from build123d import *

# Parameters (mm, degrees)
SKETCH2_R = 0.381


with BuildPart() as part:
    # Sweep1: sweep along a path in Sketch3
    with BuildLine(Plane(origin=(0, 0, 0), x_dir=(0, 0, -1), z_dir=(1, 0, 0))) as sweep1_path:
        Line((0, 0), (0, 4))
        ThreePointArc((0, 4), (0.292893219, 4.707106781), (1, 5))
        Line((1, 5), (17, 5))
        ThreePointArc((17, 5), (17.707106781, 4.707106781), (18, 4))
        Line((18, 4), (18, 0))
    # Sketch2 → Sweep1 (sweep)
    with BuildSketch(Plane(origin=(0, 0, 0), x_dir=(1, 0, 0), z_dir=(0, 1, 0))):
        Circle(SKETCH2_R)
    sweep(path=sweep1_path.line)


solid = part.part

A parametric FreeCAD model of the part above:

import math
import FreeCAD as App
import Part
import Sketcher
from FreeCAD import Vector
Q = App.Units.Quantity

doc = App.newDocument("Part")
body = doc.addObject("PartDesign::Body", "Body")

# Sketch on XZ plane
sketch1 = doc.addObject("Sketcher::SketchObject", "Sketch")
body.addObject(sketch1)
sketch1.AttachmentSupport = (doc.XZ_Plane, [""])
sketch1.MapMode = "FlatFace"
sketch1.addGeometry(Part.Circle(Vector(0, 0, 0), Vector(0, 0, 1), 0.38), False)
sketch1.addConstraint(Sketcher.Constraint("Coincident", 0, 3, -1, 1))
sketch1.addConstraint(Sketcher.Constraint("Diameter", 0, Q("0.762 mm")))

# Sketch on YZ plane
sketch2 = doc.addObject("Sketcher::SketchObject", "Sketch001")
body.addObject(sketch2)
sketch2.AttachmentSupport = (doc.YZ_Plane, [""])
sketch2.MapMode = "FlatFace"
sketch2.addGeometry(Part.LineSegment(Vector(0, 0, 0), Vector(4, 0, 0)), False)
sketch2.addGeometry(Part.ArcOfCircle(Part.Circle(Vector(4, -1, 0), Vector(0, 0, 1), 1), math.radians(0), math.radians(90)), False)
sketch2.addGeometry(Part.LineSegment(Vector(5, -1, 0), Vector(5, -17, 0)), False)
sketch2.addGeometry(Part.ArcOfCircle(Part.Circle(Vector(4, -17, 0), Vector(0, 0, 1), 1), math.radians(-90), math.radians(0)), False)
sketch2.addGeometry(Part.LineSegment(Vector(4, -18, 0), Vector(0, -18, 0)), False)
sketch2.addConstraint(Sketcher.Constraint("Tangent", 0, 2, 1, 2))
sketch2.addConstraint(Sketcher.Constraint("Tangent", 1, 1, 2, 1))
sketch2.addConstraint(Sketcher.Constraint("Tangent", 2, 2, 3, 2))
sketch2.addConstraint(Sketcher.Constraint("Tangent", 3, 1, 4, 1))
sketch2.addConstraint(Sketcher.Constraint("Horizontal", 0))
sketch2.addConstraint(Sketcher.Constraint("Vertical", 2))
sketch2.addConstraint(Sketcher.Constraint("Horizontal", 4))
sketch2.addConstraint(Sketcher.Constraint("Coincident", 0, 1, -1, 1))
sketch2.addConstraint(Sketcher.Constraint("Equal", 1, 3))
sketch2.addConstraint(Sketcher.Constraint("PointOnObject", 4, 2, -2))
sketch2.addConstraint(Sketcher.Constraint("Radius", 1, Q("1 mm")))
sketch2.addConstraint(Sketcher.Constraint("DistanceX", 0, 1, 0, 2, Q("4 mm")))
sketch2.addConstraint(Sketcher.Constraint("DistanceY", 2, 2, 2, 1, Q("16 mm")))
doc.recompute()

additivepipe = doc.addObject("PartDesign::AdditivePipe", "AdditivePipe")
body.addObject(additivepipe)
additivepipe.Profile = sketch1
additivepipe.Spine = (sketch2, ["Edge1", "Edge2", "Edge3", "Edge4", "Edge5"])

doc.recompute()
